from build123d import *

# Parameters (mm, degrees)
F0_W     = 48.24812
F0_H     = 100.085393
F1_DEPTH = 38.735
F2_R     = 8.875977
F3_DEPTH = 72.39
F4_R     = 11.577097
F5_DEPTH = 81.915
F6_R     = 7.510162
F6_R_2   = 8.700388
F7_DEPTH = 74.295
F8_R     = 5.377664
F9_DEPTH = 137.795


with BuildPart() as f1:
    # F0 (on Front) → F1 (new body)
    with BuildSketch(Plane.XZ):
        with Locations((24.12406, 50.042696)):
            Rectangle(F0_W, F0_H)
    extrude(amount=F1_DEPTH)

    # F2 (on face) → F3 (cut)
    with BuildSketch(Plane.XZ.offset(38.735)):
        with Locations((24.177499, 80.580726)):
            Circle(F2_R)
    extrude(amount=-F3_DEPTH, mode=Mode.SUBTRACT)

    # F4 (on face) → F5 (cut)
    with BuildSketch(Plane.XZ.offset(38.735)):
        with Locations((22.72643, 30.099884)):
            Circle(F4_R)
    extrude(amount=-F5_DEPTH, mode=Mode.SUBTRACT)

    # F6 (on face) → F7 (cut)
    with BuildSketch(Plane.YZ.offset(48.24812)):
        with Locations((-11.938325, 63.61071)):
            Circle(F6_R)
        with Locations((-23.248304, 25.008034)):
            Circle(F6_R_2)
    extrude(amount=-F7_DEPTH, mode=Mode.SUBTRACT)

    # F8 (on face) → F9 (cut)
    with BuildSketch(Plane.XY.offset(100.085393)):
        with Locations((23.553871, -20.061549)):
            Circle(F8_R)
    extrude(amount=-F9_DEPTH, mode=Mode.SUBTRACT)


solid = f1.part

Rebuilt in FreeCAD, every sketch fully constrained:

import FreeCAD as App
import Part
import Sketcher
Q = App.Units.Quantity

doc = App.newDocument("Part")
body = doc.addObject("PartDesign::Body", "Body")

sketch1 = body.newObject("Sketcher::SketchObject", "Sketch")
sketch1.AttachmentSupport = (doc.getObject("XZ_Plane"), [""])
sketch1.MapMode = "FlatFace"
sketch1.addGeometry([
    Part.LineSegment(App.Vector(0, 100, 0), App.Vector(0, 0, 0)),
    Part.LineSegment(App.Vector(0, 0, 0), App.Vector(48, 0, 0)),
    Part.LineSegment(App.Vector(48, 0, 0), App.Vector(48, 100, 0)),
    Part.LineSegment(App.Vector(48, 100, 0), App.Vector(0, 100, 0)),
], False)
sketch1.addConstraint([
    Sketcher.Constraint("Coincident", 0, 2, 1, 1),
    Sketcher.Constraint("Coincident", 1, 2, 2, 1),
    Sketcher.Constraint("Coincident", 2, 2, 3, 1),
    Sketcher.Constraint("Coincident", 3, 2, 0, 1),
    Sketcher.Constraint("Vertical", 0),
    Sketcher.Constraint("Horizontal", 1),
    Sketcher.Constraint("Vertical", 2),
    Sketcher.Constraint("Horizontal", 3),
    Sketcher.Constraint("Coincident", 0, 2, -1, 1),
    Sketcher.Constraint("DistanceX", 1, 1, 1, 2, Q("48.24812 mm")),
    Sketcher.Constraint("DistanceY", 0, 2, 0, 1, Q("100.085393 mm")),
])
pad1 = body.newObject("PartDesign::Pad", "Pad")
pad1.Profile = sketch1
pad1.Length = Q("1.525 in")

sketch2 = body.newObject("Sketcher::SketchObject", "Sketch001")
sketch2.AttachmentSupport = (doc.getObject("XZ_Plane"), [""])
sketch2.MapMode = "FlatFace"
sketch2.AttachmentOffset = App.Placement(App.Vector(0, 0, 1.525 * 25.4), App.Rotation())
sketch2.addGeometry(Part.Circle(App.Vector(24, 81, 0), App.Vector(0, 0, 1), 9), False)
sketch2.addConstraint([
    Sketcher.Constraint("Diameter", 0, Q("17.751954 mm")),
    Sketcher.Constraint("DistanceX", -1, 1, 0, 3, Q("24.177499 mm")),
    Sketcher.Constraint("DistanceY", -1, 1, 0, 3, Q("80.580726 mm")),
])
pocket1 = body.newObject("PartDesign::Pocket", "Pocket")
pocket1.Profile = sketch2
pocket1.Length = Q("2.85 in")

sketch3 = body.newObject("Sketcher::SketchObject", "Sketch002")
sketch3.AttachmentSupport = (doc.getObject("XZ_Plane"), [""])
sketch3.MapMode = "FlatFace"
sketch3.AttachmentOffset = App.Placement(App.Vector(0, 0, 1.525 * 25.4), App.Rotation())
sketch3.addGeometry(Part.Circle(App.Vector(23, 30, 0), App.Vector(0, 0, 1), 12), False)
sketch3.addConstraint([
    Sketcher.Constraint("Diameter", 0, Q("23.154194 mm")),
    Sketcher.Constraint("DistanceX", -1, 1, 0, 3, Q("22.72643 mm")),
    Sketcher.Constraint("DistanceY", -1, 1, 0, 3, Q("30.099884 mm")),
])
pocket2 = body.newObject("PartDesign::Pocket", "Pocket001")
pocket2.Profile = sketch3
pocket2.Length = Q("3.225 in")

sketch4 = body.newObject("Sketcher::SketchObject", "Sketch003")
sketch4.AttachmentSupport = (doc.getObject("YZ_Plane"), [""])
sketch4.MapMode = "FlatFace"
sketch4.AttachmentOffset = App.Placement(App.Vector(0, 0, 48.24812), App.Rotation())
sketch4.addGeometry([
    Part.Circle(App.Vector(-12, 64, 0), App.Vector(0, 0, 1), 8),
    Part.Circle(App.Vector(-23, 25, 0), App.Vector(0, 0, 1), 9),
], False)
sketch4.addConstraint([
    Sketcher.Constraint("Diameter", 0, Q("15.020324 mm")),
    Sketcher.Constraint("Diameter", 1, Q("17.400776 mm")),
    Sketcher.Constraint("DistanceY", -1, 1, 0, 3, Q("63.61071 mm")),
    Sketcher.Constraint("DistanceX", 1, 3, 0, 3, Q("11.309979 mm")),
    Sketcher.Constraint("DistanceX", 0, 3, -1, 1, Q("11.938325 mm")),
    Sketcher.Constraint("DistanceY", -1, 1, 1, 3, Q("25.008034 mm")),
])
pocket3 = body.newObject("PartDesign::Pocket", "Pocket002")
pocket3.Profile = sketch4
pocket3.Length = Q("2.925 in")

sketch5 = body.newObject("Sketcher::SketchObject", "Sketch004")
sketch5.AttachmentSupport = (doc.getObject("XY_Plane"), [""])
sketch5.MapMode = "FlatFace"
sketch5.AttachmentOffset = App.Placement(App.Vector(0, 0, 100.085393), App.Rotation())
sketch5.addGeometry(Part.Circle(App.Vector(24, -20, 0), App.Vector(0, 0, 1), 5), False)
sketch5.addConstraint([
    Sketcher.Constraint("Diameter", 0, Q("10.755328 mm")),
    Sketcher.Constraint("DistanceX", -1, 1, 0, 3, Q("23.553871 mm")),
    Sketcher.Constraint("DistanceY", 0, 3, -1, 1, Q("20.061549 mm")),
])
pocket4 = body.newObject("PartDesign::Pocket", "Pocket003")
pocket4.Profile = sketch5
pocket4.Length = Q("5.425 in")

doc.recompute()
